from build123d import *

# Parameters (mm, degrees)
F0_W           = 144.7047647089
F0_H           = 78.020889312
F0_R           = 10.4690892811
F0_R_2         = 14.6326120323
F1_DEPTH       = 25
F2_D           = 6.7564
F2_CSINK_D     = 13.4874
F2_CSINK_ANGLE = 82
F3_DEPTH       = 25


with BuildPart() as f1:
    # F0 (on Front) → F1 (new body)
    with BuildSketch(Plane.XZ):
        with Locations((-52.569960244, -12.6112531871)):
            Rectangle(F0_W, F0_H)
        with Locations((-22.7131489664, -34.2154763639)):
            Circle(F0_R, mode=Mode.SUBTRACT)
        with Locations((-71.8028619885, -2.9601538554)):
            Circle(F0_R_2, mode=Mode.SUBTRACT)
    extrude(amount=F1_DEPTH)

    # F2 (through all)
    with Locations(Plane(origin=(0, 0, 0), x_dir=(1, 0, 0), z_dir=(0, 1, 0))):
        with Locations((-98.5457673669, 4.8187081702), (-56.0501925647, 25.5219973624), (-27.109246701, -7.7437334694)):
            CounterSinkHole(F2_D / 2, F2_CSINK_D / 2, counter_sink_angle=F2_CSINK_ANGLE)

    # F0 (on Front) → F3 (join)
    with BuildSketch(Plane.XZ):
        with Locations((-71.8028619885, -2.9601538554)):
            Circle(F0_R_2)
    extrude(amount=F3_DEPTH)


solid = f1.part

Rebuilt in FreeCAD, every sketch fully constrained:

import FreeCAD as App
import Part
import Sketcher

doc = App.newDocument("Part")
body = doc.addObject("PartDesign::Body", "Body")

sketch1 = doc.addObject("Sketcher::SketchObject", "Sketch")
body.addObject(sketch1)
sketch1.AttachmentSupport = (doc.XZ_Plane, [""])
sketch1.MapMode = "FlatFace"
sketch1.addGeometry(Part.LineSegment(App.Vector(-125, 26, 0), App.Vector(-125, -52, 0)), False)
sketch1.addGeometry(Part.LineSegment(App.Vector(-125, -52, 0), App.Vector(20, -52, 0)), False)
sketch1.addGeometry(Part.LineSegment(App.Vector(20, -52, 0), App.Vector(20, 26, 0)), False)
sketch1.addGeometry(Part.LineSegment(App.Vector(20, 26, 0), App.Vector(-125, 26, 0)), False)
sketch1.addGeometry(Part.Circle(App.Vector(-23, -34, 0), App.Vector(0, 0, 1), 10), False)
sketch1.addGeometry(Part.Circle(App.Vector(-72, -3, 0), App.Vector(0, 0, 1), 15), False)
sketch1.addConstraint(Sketcher.Constraint("Coincident", 0, 2, 1, 1))
sketch1.addConstraint(Sketcher.Constraint("Coincident", 1, 2, 2, 1))
sketch1.addConstraint(Sketcher.Constraint("Coincident", 2, 2, 3, 1))
sketch1.addConstraint(Sketcher.Constraint("Coincident", 3, 2, 0, 1))
sketch1.addConstraint(Sketcher.Constraint("Vertical", 0))
sketch1.addConstraint(Sketcher.Constraint("Horizontal", 1))
sketch1.addConstraint(Sketcher.Constraint("Vertical", 2))
sketch1.addConstraint(Sketcher.Constraint("Horizontal", 3))
sketch1.addConstraint(Sketcher.Constraint("Diameter", 4, 20.938179))
sketch1.addConstraint(Sketcher.Constraint("Diameter", 5, 29.265224))
sketch1.addConstraint(Sketcher.Constraint("DistanceY", 0, 2, 0, 1, 78.020889))
sketch1.addConstraint(Sketcher.Constraint("DistanceX", 1, 1, 1, 2, 144.704765))
sketch1.addConstraint(Sketcher.Constraint("DistanceX", 4, 3, -1, 1, 22.713149))
sketch1.addConstraint(Sketcher.Constraint("DistanceX", 5, 3, -1, 1, 71.802862))
sketch1.addConstraint(Sketcher.Constraint("DistanceY", -1, 1, 2, 2, 26.399191))
sketch1.addConstraint(Sketcher.Constraint("DistanceX", 0, 2, 5, 3, 53.119481))
sketch1.addConstraint(Sketcher.Constraint("DistanceY", 0, 2, 4, 3, 17.406221))
sketch1.addConstraint(Sketcher.Constraint("DistanceY", 5, 3, -1, 1, 2.960154))
pad1 = doc.addObject("PartDesign::Pad", "Pad")
body.addObject(pad1)
pad1.Profile = sketch1
pad1.Length = 25

sketch2 = doc.addObject("Sketcher::SketchObject", "Sketch001")
body.addObject(sketch2)
sketch2.AttachmentSupport = (doc.XZ_Plane, [""])
sketch2.MapMode = "FlatFace"
sketch2.addGeometry(Part.Circle(App.Vector(-98.5, -4.8, 0), App.Vector(0, 0, 1), 3.4), False)
sketch2.addGeometry(Part.Circle(App.Vector(-56.1, -25.5, 0), App.Vector(0, 0, 1), 3.4), False)
sketch2.addGeometry(Part.Circle(App.Vector(-27.1, 7.7, 0), App.Vector(0, 0, 1), 3.4), False)
sketch2.addConstraint(Sketcher.Constraint("Equal", 0, 1))
sketch2.addConstraint(Sketcher.Constraint("Equal", 1, 2))
sketch2.addConstraint(Sketcher.Constraint("Diameter", 0, 6.7564))
sketch2.addConstraint(Sketcher.Constraint("DistanceY", 0, 3, -1, 1, 4.818708))
sketch2.addConstraint(Sketcher.Constraint("DistanceY", 1, 3, 0, 3, 20.703289))
sketch2.addConstraint(Sketcher.Constraint("DistanceY", 1, 3, 2, 3, 33.265731))
sketch2.addConstraint(Sketcher.Constraint("DistanceX", 0, 3, 2, 3, 71.436521))
sketch2.addConstraint(Sketcher.Constraint("DistanceX", 0, 3, -1, 1, 98.545767))
sketch2.addConstraint(Sketcher.Constraint("DistanceX", 1, 3, -1, 1, 56.050193))
doc.recompute()
hole = doc.addObject("PartDesign::Hole", "Hole")
body.addObject(hole)
hole.Profile = sketch2
hole.ThreadType = "None"
hole.Diameter = 6.7564
hole.DepthType = "ThroughAll"
hole.HoleCutType = "Countersink"
hole.HoleCutDiameter = 13.4874
hole.HoleCutCountersinkAngle = 82
hole.Reversed = True

sketch3 = doc.addObject("Sketcher::SketchObject", "Sketch002")
body.addObject(sketch3)
sketch3.AttachmentSupport = (doc.XZ_Plane, [""])
sketch3.MapMode = "FlatFace"
sketch3.addGeometry(Part.Circle(App.Vector(-72, -3, 0), App.Vector(0, 0, 1), 15), False)
sketch3.addConstraint(Sketcher.Constraint("Diameter", 0, 29.265224))
sketch3.addConstraint(Sketcher.Constraint("DistanceX", 0, 3, -1, 1, 71.802862))
sketch3.addConstraint(Sketcher.Constraint("DistanceY", 0, 3, -1, 1, 2.960154))
pad2 = doc.addObject("PartDesign::Pad", "Pad001")
body.addObject(pad2)
pad2.Profile = sketch3
pad2.Length = 25

doc.recompute()
